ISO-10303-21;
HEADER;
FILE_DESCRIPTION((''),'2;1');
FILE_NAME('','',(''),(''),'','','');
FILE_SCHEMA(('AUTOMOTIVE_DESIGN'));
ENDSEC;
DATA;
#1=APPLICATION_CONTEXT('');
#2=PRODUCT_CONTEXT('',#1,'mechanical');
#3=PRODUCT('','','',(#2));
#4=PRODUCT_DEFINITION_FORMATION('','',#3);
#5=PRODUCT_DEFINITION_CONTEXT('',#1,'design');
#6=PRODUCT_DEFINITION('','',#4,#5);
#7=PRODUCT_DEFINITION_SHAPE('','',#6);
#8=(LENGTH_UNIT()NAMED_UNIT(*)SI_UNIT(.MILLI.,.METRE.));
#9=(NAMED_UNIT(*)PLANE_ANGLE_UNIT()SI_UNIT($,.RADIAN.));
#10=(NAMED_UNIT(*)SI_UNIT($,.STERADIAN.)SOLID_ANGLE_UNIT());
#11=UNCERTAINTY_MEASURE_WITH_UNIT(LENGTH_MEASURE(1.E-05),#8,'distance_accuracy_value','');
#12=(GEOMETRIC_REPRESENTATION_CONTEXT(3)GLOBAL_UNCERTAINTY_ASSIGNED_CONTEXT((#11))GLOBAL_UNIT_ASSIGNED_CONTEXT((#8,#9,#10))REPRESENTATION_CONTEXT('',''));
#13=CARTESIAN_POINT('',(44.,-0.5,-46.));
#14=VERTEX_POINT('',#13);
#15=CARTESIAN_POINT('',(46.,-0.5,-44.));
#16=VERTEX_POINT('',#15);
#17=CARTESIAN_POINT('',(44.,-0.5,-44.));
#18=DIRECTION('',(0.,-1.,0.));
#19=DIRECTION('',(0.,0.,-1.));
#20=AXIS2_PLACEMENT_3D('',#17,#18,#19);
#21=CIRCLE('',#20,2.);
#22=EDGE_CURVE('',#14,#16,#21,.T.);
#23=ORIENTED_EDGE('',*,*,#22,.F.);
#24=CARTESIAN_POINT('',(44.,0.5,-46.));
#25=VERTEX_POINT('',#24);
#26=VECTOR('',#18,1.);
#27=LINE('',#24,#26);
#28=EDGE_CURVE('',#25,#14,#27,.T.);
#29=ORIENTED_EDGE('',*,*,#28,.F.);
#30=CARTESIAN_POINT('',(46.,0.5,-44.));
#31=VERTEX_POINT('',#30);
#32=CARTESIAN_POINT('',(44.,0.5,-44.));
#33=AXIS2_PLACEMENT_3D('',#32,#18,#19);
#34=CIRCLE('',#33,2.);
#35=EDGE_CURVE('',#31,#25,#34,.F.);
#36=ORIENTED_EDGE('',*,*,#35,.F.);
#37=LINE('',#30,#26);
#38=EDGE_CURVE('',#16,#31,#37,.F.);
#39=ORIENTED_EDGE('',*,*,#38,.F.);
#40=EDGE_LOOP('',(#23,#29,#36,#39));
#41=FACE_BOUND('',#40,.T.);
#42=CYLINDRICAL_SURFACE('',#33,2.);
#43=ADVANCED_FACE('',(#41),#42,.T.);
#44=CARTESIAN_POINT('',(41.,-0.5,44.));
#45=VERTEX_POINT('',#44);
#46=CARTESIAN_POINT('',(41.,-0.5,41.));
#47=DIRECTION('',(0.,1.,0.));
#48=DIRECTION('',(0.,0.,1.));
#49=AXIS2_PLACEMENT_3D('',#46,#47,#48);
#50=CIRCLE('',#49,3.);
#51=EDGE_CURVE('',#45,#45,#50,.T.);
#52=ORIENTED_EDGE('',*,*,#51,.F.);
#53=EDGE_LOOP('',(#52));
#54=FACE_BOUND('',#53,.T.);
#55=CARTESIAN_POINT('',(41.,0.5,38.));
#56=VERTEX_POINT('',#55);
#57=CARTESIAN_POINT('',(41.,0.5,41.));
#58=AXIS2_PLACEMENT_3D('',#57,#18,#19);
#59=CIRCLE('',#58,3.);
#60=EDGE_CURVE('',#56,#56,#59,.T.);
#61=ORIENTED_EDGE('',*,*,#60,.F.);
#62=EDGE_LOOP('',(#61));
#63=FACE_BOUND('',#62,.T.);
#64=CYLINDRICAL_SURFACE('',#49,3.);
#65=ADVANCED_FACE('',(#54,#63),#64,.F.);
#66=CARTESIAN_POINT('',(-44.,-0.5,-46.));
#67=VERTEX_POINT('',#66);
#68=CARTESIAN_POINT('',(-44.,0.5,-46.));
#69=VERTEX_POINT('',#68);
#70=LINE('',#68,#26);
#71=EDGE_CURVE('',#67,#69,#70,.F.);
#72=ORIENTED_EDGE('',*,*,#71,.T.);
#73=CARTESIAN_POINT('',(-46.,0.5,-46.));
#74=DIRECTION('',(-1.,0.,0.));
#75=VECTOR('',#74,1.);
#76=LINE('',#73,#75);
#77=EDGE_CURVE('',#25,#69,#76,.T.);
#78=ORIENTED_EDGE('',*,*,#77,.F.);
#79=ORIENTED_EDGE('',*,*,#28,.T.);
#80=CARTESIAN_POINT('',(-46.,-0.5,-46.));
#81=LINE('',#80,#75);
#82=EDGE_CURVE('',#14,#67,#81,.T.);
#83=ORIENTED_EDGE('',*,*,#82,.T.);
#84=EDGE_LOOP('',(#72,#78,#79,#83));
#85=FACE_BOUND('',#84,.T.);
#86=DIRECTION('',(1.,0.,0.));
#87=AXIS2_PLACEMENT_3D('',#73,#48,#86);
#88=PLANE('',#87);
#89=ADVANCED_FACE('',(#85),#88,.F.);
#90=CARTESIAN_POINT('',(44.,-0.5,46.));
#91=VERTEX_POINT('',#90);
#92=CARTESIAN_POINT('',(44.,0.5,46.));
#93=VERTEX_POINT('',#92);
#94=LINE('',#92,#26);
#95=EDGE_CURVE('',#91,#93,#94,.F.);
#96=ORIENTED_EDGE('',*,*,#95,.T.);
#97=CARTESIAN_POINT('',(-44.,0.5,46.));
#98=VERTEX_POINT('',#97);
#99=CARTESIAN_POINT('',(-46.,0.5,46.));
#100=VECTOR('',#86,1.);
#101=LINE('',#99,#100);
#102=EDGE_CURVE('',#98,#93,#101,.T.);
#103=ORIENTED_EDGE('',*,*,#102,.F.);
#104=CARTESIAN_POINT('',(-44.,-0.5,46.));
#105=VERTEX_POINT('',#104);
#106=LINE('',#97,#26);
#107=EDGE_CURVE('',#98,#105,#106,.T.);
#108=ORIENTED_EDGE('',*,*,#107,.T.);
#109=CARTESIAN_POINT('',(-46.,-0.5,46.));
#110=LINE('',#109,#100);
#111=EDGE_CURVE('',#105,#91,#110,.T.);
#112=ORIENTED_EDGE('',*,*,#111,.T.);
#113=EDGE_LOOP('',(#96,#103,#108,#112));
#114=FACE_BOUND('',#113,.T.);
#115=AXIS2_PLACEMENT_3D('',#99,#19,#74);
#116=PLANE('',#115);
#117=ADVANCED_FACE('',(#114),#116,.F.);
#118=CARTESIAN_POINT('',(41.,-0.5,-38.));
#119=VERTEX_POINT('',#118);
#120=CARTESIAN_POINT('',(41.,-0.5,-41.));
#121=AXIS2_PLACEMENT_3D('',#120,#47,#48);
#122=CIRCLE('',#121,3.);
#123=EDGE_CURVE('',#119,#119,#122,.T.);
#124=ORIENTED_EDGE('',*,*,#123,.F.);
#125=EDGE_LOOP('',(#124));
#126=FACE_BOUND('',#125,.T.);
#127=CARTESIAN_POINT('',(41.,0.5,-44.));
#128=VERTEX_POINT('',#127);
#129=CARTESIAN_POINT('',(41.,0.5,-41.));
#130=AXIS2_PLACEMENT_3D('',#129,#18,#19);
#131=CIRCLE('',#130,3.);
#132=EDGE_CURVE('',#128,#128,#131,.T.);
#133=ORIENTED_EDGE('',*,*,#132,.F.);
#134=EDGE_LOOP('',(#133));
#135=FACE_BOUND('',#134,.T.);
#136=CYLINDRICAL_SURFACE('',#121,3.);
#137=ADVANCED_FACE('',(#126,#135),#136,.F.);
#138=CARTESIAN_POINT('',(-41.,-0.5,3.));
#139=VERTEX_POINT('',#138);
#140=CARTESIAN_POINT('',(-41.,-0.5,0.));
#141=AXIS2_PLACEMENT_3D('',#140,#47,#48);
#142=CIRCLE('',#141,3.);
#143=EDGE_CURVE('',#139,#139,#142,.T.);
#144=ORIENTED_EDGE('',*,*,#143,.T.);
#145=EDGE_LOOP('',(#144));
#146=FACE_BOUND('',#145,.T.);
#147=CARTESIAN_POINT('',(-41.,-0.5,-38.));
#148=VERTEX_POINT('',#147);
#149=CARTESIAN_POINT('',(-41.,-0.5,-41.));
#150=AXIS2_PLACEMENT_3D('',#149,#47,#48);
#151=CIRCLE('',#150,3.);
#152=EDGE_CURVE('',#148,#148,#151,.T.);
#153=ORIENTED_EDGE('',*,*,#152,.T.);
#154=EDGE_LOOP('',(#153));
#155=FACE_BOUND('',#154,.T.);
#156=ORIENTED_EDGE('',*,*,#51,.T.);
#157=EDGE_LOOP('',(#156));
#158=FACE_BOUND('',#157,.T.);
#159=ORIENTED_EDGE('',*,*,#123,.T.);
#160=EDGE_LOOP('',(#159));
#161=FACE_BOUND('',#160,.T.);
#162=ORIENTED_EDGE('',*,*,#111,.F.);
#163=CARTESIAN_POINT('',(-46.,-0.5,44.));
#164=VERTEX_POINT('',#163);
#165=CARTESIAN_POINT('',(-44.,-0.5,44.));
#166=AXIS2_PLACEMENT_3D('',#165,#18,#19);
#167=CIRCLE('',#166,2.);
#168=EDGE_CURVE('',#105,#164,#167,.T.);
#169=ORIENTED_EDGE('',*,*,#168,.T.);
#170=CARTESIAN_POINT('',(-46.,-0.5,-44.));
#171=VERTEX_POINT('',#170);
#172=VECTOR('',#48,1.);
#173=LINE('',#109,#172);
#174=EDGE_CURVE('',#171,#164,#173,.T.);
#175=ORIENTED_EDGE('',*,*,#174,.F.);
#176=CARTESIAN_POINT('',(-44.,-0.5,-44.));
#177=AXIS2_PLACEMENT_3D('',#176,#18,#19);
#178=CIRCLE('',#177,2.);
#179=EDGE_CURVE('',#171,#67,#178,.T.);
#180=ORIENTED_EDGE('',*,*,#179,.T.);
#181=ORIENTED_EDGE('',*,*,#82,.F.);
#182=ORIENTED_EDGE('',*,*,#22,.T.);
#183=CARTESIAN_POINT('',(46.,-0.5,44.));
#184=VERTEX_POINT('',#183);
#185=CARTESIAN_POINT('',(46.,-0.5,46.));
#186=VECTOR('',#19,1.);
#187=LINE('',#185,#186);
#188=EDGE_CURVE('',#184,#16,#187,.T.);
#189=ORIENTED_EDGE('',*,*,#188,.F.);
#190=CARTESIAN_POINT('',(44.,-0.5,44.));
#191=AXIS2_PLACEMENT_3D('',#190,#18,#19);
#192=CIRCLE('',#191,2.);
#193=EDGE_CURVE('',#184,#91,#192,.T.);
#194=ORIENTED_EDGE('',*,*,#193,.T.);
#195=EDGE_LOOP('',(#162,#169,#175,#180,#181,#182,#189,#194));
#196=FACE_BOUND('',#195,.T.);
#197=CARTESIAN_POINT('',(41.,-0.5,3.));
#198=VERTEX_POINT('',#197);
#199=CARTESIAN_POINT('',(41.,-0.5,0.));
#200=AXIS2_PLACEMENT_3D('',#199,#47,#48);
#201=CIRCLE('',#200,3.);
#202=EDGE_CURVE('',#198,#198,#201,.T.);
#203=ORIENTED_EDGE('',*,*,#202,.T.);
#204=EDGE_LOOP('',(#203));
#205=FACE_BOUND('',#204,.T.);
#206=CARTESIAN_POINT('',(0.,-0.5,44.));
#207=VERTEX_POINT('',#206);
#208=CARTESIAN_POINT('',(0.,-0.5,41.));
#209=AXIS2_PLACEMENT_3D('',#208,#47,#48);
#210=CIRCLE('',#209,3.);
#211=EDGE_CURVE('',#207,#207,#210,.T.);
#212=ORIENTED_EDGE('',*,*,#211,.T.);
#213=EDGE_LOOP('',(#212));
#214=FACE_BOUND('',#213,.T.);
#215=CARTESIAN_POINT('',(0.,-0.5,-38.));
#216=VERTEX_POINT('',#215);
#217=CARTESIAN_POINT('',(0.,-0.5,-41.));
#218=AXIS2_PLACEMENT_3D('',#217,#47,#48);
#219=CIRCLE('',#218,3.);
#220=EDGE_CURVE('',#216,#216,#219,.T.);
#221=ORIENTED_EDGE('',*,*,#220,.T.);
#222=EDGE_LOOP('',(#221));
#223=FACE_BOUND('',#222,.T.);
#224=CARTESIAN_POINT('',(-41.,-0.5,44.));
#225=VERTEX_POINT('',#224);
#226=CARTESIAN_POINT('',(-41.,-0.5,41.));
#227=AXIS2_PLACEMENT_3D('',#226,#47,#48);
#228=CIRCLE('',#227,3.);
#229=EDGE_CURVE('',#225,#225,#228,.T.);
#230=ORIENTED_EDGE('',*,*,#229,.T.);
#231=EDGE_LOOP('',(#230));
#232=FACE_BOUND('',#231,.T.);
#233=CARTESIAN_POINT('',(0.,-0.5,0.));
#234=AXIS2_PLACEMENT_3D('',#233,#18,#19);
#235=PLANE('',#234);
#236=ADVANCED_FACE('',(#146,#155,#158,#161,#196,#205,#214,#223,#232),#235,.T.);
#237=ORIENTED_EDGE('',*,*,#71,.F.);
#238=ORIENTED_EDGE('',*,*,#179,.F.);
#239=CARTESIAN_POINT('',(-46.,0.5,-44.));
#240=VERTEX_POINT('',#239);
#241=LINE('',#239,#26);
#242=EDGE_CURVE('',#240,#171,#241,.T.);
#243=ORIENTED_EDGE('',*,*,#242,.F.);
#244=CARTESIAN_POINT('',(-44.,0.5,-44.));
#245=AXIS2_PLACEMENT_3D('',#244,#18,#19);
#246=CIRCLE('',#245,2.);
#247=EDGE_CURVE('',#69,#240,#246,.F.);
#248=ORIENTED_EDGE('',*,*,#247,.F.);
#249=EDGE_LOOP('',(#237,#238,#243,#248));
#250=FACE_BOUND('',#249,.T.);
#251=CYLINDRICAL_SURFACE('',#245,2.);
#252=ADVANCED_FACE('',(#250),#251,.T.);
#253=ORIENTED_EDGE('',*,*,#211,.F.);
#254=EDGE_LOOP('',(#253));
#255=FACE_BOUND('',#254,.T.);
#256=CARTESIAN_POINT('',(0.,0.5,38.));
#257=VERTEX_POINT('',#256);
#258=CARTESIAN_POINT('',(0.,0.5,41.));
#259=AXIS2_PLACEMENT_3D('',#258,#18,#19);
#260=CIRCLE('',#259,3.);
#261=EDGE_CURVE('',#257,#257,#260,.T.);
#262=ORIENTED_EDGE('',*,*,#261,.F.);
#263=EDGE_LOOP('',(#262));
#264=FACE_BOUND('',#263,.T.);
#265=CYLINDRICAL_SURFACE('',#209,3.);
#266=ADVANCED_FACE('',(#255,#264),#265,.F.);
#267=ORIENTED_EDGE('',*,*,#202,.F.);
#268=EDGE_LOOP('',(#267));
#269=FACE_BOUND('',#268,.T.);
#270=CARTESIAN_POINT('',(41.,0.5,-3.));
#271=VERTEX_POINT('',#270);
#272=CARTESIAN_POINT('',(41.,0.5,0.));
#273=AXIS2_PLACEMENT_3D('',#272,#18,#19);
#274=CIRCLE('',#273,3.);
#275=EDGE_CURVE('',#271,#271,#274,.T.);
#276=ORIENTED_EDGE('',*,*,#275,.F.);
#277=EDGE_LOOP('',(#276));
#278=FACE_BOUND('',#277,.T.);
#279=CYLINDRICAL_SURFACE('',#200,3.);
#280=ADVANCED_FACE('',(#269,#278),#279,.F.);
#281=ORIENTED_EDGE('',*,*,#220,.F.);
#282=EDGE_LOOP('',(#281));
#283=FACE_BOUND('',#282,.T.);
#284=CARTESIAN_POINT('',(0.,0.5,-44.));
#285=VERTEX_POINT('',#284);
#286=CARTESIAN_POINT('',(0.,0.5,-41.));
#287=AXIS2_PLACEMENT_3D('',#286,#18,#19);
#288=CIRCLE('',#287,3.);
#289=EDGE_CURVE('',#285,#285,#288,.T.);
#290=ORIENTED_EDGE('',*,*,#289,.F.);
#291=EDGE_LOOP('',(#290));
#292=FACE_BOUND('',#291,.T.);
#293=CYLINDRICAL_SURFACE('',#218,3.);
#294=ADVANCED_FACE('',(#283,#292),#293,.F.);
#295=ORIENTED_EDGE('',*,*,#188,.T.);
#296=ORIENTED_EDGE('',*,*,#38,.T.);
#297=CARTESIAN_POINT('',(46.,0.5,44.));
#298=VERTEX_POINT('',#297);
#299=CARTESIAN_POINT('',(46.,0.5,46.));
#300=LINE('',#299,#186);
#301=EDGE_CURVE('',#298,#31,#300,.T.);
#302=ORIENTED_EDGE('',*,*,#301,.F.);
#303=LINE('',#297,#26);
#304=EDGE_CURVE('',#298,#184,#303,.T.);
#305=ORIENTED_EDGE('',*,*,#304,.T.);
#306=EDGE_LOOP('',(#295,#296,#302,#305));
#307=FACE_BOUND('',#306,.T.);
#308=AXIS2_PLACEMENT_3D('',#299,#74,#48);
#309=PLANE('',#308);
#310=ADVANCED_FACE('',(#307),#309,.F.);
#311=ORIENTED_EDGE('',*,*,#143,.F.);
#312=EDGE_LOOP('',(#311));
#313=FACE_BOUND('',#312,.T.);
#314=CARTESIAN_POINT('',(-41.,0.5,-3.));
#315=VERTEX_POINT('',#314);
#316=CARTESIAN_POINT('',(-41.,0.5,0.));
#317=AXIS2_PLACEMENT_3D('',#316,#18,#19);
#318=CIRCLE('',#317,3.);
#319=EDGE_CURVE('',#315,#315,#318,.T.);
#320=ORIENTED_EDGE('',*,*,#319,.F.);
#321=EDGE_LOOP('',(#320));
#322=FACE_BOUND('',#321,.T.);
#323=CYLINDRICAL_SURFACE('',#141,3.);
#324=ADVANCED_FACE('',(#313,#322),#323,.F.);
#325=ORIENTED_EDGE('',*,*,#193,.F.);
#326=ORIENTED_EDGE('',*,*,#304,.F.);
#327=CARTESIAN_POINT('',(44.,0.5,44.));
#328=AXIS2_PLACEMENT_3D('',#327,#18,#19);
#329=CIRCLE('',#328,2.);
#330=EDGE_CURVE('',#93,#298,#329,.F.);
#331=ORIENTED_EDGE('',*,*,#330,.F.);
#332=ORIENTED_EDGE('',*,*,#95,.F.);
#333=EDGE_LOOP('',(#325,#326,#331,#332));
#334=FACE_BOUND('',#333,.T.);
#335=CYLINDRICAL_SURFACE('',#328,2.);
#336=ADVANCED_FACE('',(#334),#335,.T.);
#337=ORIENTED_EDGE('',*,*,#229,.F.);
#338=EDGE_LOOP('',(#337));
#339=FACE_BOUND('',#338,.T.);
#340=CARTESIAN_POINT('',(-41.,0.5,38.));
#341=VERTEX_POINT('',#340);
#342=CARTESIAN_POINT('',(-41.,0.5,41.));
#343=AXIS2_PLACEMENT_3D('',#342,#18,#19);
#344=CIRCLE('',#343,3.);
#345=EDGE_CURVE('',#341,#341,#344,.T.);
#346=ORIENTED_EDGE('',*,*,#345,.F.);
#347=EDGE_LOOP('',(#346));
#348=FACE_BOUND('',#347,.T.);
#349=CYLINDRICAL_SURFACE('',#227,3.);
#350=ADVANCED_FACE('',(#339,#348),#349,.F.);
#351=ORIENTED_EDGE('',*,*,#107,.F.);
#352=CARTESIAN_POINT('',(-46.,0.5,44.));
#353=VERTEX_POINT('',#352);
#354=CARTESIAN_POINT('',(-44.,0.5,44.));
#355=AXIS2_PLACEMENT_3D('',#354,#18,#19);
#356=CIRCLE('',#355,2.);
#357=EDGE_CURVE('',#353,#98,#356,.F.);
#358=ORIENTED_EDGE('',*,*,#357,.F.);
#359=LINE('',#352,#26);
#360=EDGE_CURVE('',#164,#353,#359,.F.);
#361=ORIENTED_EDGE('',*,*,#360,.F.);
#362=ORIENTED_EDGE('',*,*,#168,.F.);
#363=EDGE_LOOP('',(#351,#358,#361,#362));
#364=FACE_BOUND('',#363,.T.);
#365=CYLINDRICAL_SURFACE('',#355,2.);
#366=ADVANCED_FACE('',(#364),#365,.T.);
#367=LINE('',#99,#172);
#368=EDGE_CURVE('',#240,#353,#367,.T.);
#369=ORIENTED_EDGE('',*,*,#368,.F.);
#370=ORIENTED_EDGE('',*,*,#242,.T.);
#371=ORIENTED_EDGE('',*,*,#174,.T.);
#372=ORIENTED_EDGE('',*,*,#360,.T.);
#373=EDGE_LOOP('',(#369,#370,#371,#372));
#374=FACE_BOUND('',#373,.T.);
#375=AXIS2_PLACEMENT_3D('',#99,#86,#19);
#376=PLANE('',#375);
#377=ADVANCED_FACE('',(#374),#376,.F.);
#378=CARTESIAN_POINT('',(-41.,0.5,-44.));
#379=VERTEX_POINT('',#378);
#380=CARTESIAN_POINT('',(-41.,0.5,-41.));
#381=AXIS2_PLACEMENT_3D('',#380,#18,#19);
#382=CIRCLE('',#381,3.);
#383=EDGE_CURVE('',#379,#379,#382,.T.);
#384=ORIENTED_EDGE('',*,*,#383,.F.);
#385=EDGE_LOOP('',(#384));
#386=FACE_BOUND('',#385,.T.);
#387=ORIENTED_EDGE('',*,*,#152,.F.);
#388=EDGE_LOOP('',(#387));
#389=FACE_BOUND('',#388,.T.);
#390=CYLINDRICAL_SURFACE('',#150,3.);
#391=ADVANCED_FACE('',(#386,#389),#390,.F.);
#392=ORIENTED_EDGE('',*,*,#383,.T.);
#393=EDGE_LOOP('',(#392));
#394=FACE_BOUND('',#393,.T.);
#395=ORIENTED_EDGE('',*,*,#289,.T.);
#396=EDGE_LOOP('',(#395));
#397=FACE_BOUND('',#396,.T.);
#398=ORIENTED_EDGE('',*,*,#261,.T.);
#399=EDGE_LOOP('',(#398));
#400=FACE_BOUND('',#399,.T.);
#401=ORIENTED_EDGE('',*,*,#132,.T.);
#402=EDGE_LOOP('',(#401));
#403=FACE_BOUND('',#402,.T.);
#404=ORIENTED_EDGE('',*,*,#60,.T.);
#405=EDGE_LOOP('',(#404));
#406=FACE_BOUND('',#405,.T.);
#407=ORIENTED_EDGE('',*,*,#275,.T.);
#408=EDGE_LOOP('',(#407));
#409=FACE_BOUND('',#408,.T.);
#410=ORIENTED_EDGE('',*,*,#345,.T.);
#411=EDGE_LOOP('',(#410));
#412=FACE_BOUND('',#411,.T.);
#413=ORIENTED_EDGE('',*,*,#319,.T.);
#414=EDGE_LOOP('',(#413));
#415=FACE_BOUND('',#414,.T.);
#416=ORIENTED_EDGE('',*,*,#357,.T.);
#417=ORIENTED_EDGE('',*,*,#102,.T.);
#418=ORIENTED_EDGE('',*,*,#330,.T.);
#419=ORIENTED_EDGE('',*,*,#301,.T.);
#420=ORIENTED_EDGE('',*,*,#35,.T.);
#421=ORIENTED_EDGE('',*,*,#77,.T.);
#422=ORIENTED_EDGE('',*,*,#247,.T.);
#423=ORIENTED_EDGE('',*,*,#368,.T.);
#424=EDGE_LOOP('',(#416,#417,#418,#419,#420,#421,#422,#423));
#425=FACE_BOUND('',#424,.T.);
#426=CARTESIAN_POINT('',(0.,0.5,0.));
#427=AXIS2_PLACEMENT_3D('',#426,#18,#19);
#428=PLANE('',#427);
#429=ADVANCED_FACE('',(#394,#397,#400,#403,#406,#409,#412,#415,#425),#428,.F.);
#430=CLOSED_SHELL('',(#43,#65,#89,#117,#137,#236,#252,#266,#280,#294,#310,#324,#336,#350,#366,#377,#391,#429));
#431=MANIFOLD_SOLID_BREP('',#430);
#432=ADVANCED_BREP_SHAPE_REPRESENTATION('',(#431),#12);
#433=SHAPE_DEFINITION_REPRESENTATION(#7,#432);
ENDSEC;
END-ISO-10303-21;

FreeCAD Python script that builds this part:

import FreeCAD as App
import Part
import Sketcher
from FreeCAD import Vector
Q = App.Units.Quantity


def edges_at(feature, points):
    """Names of the edges that pass closest to the given points."""
    edges = feature.Shape.Edges
    near = lambda p: min(range(len(edges)), key=lambda i: edges[i].distToShape(Part.Vertex(*p))[0])
    return sorted({f"Edge{near(p) + 1}" for p in points})


def add_polygon(sketch, points):
    """Adds a closed chain of lines whose ends are joined by coincident constraints."""
    first, n = sketch.GeometryCount, len(points)
    for a, b in zip(points, points[1:] + points[:1]):
        sketch.addGeometry(Part.LineSegment(App.Vector(*a, 0), App.Vector(*b, 0)), False)
    for i in range(n):
        sketch.addConstraint(Sketcher.Constraint("Coincident", first + i, 2, first + (i + 1) % n, 1))

doc = App.newDocument("Part")
body = doc.addObject("PartDesign::Body", "Body")

# Sketch on XZ plane
sketch1 = doc.addObject("Sketcher::SketchObject", "Sketch")
body.addObject(sketch1)
sketch1.AttachmentSupport = (doc.XZ_Plane, [""])
sketch1.MapMode = "FlatFace"
add_polygon(sketch1, [(-46, -46), (-46, 46), (46, 46), (46, -46)])  # lines 0-3
sketch1.addConstraint([
    Sketcher.Constraint("Vertical", 0),
    Sketcher.Constraint("Horizontal", 1),
    Sketcher.Constraint("Vertical", 2),
    Sketcher.Constraint("Horizontal", 3),
    Sketcher.Constraint("Symmetric", 0, 2, 2, 2, -1, 1),
    Sketcher.Constraint("Equal", 3, 0),
    Sketcher.Constraint("DistanceX", 1, 1, 1, 2, Q("92 mm")),
])
pad1 = doc.addObject("PartDesign::Pad", "Pad")
body.addObject(pad1)
pad1.Profile = sketch1
pad1.Length = 1
pad1.Midplane = True
doc.recompute()

fillet = doc.addObject("PartDesign::Fillet", "Fillet")
body.addObject(fillet)
fillet.Base = (pad1, edges_at(pad1, [
    (46, 0, 46),
    (-46, 0, 46),
    (-46, 0, -46),
    (46, 0, -46),
]))
fillet.Radius = 2

# Sketch on XZ plane
sketch2 = doc.addObject("Sketcher::SketchObject", "Sketch001")
body.addObject(sketch2)
sketch2.AttachmentSupport = (doc.XZ_Plane, [""])
sketch2.MapMode = "FlatFace"
sketch2.AttachmentOffset = App.Placement(Vector(0, 0, -0.5), App.Rotation())
sketch2.addGeometry([
    Part.Circle(Vector(-41, -41, 0), Vector(0, 0, 1), 3),  # 0
    Part.Circle(Vector(0, -41, 0), Vector(0, 0, 1), 3),  # 1
    Part.Circle(Vector(41, -41, 0), Vector(0, 0, 1), 3),  # 2
    Part.Circle(Vector(41, 0, 0), Vector(0, 0, 1), 3),  # 3
    Part.Circle(Vector(41, 41, 0), Vector(0, 0, 1), 3),  # 4
    Part.Circle(Vector(0, 41, 0), Vector(0, 0, 1), 3),  # 5
    Part.Circle(Vector(-41, 41, 0), Vector(0, 0, 1), 3),  # 6
    Part.Circle(Vector(-41, 0, 0), Vector(0, 0, 1), 3),  # 7
], False)
sketch2.addConstraint([
    Sketcher.Constraint("Equal", 0, 1),
    Sketcher.Constraint("Equal", 1, 2),
    Sketcher.Constraint("Equal", 2, 3),
    Sketcher.Constraint("Equal", 3, 4),
    Sketcher.Constraint("Equal", 4, 5),
    Sketcher.Constraint("Equal", 5, 6),
    Sketcher.Constraint("Equal", 6, 7),
    Sketcher.Constraint("Symmetric", 0, 3, 4, 3, -1, 1),
    Sketcher.Constraint("Symmetric", 1, 3, 5, 3, -1, 1),
    Sketcher.Constraint("Symmetric", 2, 3, 6, 3, -1, 1),
    Sketcher.Constraint("Symmetric", 3, 3, 7, 3, -1, 1),
    Sketcher.Constraint("Symmetric", 0, 3, 2, 3, -2),
    Sketcher.Constraint("PointOnObject", 1, 3, -2),
    Sketcher.Constraint("PointOnObject", 3, 3, -1),
    Sketcher.Constraint("Horizontal", 0, 3, 1, 3),
    Sketcher.Constraint("Vertical", 2, 3, 3, 3),
    Sketcher.Constraint("Diameter", 0, Q("6 mm")),
    Sketcher.Constraint("DistanceX", 0, 3, -1, 1, Q("41 mm")),
    Sketcher.Constraint("DistanceY", 0, 3, -1, 1, Q("41 mm")),
])
pocket1 = doc.addObject("PartDesign::Pocket", "Pocket")
body.addObject(pocket1)
pocket1.Profile = sketch2
pocket1.Type = "ThroughAll"
pocket1.Midplane = True

doc.recompute()
